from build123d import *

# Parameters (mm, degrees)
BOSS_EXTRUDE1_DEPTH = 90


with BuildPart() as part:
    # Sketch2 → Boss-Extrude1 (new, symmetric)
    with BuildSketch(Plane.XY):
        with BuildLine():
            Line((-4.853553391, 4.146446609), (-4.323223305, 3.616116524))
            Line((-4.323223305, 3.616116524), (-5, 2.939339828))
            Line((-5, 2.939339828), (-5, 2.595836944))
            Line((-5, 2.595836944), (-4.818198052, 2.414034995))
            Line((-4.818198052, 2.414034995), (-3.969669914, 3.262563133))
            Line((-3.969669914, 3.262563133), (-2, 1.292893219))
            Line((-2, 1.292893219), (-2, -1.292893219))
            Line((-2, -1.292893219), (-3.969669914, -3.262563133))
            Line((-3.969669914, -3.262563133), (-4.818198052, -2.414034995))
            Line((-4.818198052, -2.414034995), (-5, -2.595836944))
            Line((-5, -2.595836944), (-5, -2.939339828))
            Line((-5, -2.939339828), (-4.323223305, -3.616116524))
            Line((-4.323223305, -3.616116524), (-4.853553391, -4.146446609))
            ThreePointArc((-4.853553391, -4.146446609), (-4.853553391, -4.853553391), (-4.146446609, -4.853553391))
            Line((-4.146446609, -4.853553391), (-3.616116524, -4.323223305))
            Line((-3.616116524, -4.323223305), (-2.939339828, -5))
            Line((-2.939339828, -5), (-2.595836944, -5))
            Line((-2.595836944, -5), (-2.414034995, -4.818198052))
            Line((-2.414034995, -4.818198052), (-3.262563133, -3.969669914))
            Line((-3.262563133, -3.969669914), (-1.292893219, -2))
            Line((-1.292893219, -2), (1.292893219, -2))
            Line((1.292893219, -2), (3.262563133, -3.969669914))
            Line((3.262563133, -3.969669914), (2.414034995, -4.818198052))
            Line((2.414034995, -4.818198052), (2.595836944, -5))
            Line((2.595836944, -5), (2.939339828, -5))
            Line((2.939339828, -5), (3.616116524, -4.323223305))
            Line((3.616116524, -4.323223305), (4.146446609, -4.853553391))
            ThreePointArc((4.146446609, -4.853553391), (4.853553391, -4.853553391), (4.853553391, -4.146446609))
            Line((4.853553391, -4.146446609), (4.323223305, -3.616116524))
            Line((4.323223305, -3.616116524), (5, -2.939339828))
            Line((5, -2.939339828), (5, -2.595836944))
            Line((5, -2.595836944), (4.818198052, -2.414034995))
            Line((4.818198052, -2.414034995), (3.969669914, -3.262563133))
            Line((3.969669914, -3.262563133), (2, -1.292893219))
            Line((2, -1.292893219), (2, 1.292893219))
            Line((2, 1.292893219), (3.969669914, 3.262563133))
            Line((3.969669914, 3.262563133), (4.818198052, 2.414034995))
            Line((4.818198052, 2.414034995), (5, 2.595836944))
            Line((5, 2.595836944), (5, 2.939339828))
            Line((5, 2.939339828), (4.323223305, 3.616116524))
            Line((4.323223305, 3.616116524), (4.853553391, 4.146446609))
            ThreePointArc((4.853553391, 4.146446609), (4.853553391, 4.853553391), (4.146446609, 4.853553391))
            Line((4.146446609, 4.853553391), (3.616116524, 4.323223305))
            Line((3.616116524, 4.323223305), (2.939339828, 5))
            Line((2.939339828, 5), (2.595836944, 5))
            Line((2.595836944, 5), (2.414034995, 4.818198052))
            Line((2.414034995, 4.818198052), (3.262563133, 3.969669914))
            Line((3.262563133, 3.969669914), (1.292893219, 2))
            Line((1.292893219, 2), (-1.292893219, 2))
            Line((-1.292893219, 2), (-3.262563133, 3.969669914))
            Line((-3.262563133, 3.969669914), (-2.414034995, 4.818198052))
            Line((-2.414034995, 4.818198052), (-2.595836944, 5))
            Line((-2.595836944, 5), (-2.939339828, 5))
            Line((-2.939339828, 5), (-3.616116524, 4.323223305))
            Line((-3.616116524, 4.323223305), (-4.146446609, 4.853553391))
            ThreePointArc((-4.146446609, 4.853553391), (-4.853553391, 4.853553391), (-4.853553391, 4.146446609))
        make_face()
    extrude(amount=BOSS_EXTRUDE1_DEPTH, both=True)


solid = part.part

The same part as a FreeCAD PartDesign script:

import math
import FreeCAD as App
import Part
import Sketcher
Q = App.Units.Quantity

doc = App.newDocument("Part")
body = doc.addObject("PartDesign::Body", "Body")

# Sketch on XY plane
sketch1 = body.newObject("Sketcher::SketchObject", "Sketch")
sketch1.AttachmentSupport = (doc.getObject("XY_Plane"), [""])
sketch1.MapMode = "FlatFace"
sketch1.addGeometry(Part.LineSegment(App.Vector(-4.85, 4.15, 0), App.Vector(-4.32, 3.62, 0)), False)
sketch1.addGeometry(Part.LineSegment(App.Vector(-4.32, 3.62, 0), App.Vector(-5, 2.94, 0)), False)
sketch1.addGeometry(Part.LineSegment(App.Vector(-5, 2.94, 0), App.Vector(-5, 2.6, 0)), False)
sketch1.addGeometry(Part.LineSegment(App.Vector(-5, 2.6, 0), App.Vector(-4.82, 2.41, 0)), False)
sketch1.addGeometry(Part.LineSegment(App.Vector(-4.82, 2.41, 0), App.Vector(-3.97, 3.26, 0)), False)
sketch1.addGeometry(Part.LineSegment(App.Vector(-3.97, 3.26, 0), App.Vector(-2, 1.29, 0)), False)
sketch1.addGeometry(Part.LineSegment(App.Vector(-2, 1.29, 0), App.Vector(-2, -1.29, 0)), False)
sketch1.addGeometry(Part.LineSegment(App.Vector(-2, -1.29, 0), App.Vector(-3.97, -3.26, 0)), False)
sketch1.addGeometry(Part.LineSegment(App.Vector(-3.97, -3.26, 0), App.Vector(-4.82, -2.41, 0)), False)
sketch1.addGeometry(Part.LineSegment(App.Vector(-4.82, -2.41, 0), App.Vector(-5, -2.6, 0)), False)
sketch1.addGeometry(Part.LineSegment(App.Vector(-5, -2.6, 0), App.Vector(-5, -2.94, 0)), False)
sketch1.addGeometry(Part.LineSegment(App.Vector(-5, -2.94, 0), App.Vector(-4.32, -3.62, 0)), False)
sketch1.addGeometry(Part.LineSegment(App.Vector(-4.32, -3.62, 0), App.Vector(-4.85, -4.15, 0)), False)
sketch1.addGeometry(Part.ArcOfCircle(Part.Circle(App.Vector(-4.5, -4.5, 0), App.Vector(0, 0, 1), 0.5), math.radians(135), math.radians(315)), False)
sketch1.addGeometry(Part.LineSegment(App.Vector(-4.15, -4.85, 0), App.Vector(-3.62, -4.32, 0)), False)
sketch1.addGeometry(Part.LineSegment(App.Vector(-3.62, -4.32, 0), App.Vector(-2.94, -5, 0)), False)
sketch1.addGeometry(Part.LineSegment(App.Vector(-2.94, -5, 0), App.Vector(-2.6, -5, 0)), False)
sketch1.addGeometry(Part.LineSegment(App.Vector(-2.6, -5, 0), App.Vector(-2.41, -4.82, 0)), False)
sketch1.addGeometry(Part.LineSegment(App.Vector(-2.41, -4.82, 0), App.Vector(-3.26, -3.97, 0)), False)
sketch1.addGeometry(Part.LineSegment(App.Vector(-3.26, -3.97, 0), App.Vector(-1.29, -2, 0)), False)
sketch1.addGeometry(Part.LineSegment(App.Vector(-1.29, -2, 0), App.Vector(1.29, -2, 0)), False)
sketch1.addGeometry(Part.LineSegment(App.Vector(1.29, -2, 0), App.Vector(3.26, -3.97, 0)), False)
sketch1.addGeometry(Part.LineSegment(App.Vector(3.26, -3.97, 0), App.Vector(2.41, -4.82, 0)), False)
sketch1.addGeometry(Part.LineSegment(App.Vector(2.41, -4.82, 0), App.Vector(2.6, -5, 0)), False)
sketch1.addGeometry(Part.LineSegment(App.Vector(2.6, -5, 0), App.Vector(2.94, -5, 0)), False)
sketch1.addGeometry(Part.LineSegment(App.Vector(2.94, -5, 0), App.Vector(3.62, -4.32, 0)), False)
sketch1.addGeometry(Part.LineSegment(App.Vector(3.62, -4.32, 0), App.Vector(4.15, -4.85, 0)), False)
sketch1.addGeometry(Part.ArcOfCircle(Part.Circle(App.Vector(4.5, -4.5, 0), App.Vector(0, 0, 1), 0.5), math.radians(-135), math.radians(45)), False)
sketch1.addGeometry(Part.LineSegment(App.Vector(4.85, -4.15, 0), App.Vector(4.32, -3.62, 0)), False)
sketch1.addGeometry(Part.LineSegment(App.Vector(4.32, -3.62, 0), App.Vector(5, -2.94, 0)), False)
sketch1.addGeometry(Part.LineSegment(App.Vector(5, -2.94, 0), App.Vector(5, -2.6, 0)), False)
sketch1.addGeometry(Part.LineSegment(App.Vector(5, -2.6, 0), App.Vector(4.82, -2.41, 0)), False)
sketch1.addGeometry(Part.LineSegment(App.Vector(4.82, -2.41, 0), App.Vector(3.97, -3.26, 0)), False)
sketch1.addGeometry(Part.LineSegment(App.Vector(3.97, -3.26, 0), App.Vector(2, -1.29, 0)), False)
sketch1.addGeometry(Part.LineSegment(App.Vector(2, -1.29, 0), App.Vector(2, 1.29, 0)), False)
sketch1.addGeometry(Part.LineSegment(App.Vector(2, 1.29, 0), App.Vector(3.97, 3.26, 0)), False)
sketch1.addGeometry(Part.LineSegment(App.Vector(3.97, 3.26, 0), App.Vector(4.82, 2.41, 0)), False)
sketch1.addGeometry(Part.LineSegment(App.Vector(4.82, 2.41, 0), App.Vector(5, 2.6, 0)), False)
sketch1.addGeometry(Part.LineSegment(App.Vector(5, 2.6, 0), App.Vector(5, 2.94, 0)), False)
sketch1.addGeometry(Part.LineSegment(App.Vector(5, 2.94, 0), App.Vector(4.32, 3.62, 0)), False)
sketch1.addGeometry(Part.LineSegment(App.Vector(4.32, 3.62, 0), App.Vector(4.85, 4.15, 0)), False)
sketch1.addGeometry(Part.ArcOfCircle(Part.Circle(App.Vector(4.5, 4.5, 0), App.Vector(0, 0, 1), 0.5), math.radians(-45), math.radians(135)), False)
sketch1.addGeometry(Part.LineSegment(App.Vector(4.15, 4.85, 0), App.Vector(3.62, 4.32, 0)), False)
sketch1.addGeometry(Part.LineSegment(App.Vector(3.62, 4.32, 0), App.Vector(2.94, 5, 0)), False)
sketch1.addGeometry(Part.LineSegment(App.Vector(2.94, 5, 0), App.Vector(2.6, 5, 0)), False)
sketch1.addGeometry(Part.LineSegment(App.Vector(2.6, 5, 0), App.Vector(2.41, 4.82, 0)), False)
sketch1.addGeometry(Part.LineSegment(App.Vector(2.41, 4.82, 0), App.Vector(3.26, 3.97, 0)), False)
sketch1.addGeometry(Part.LineSegment(App.Vector(3.26, 3.97, 0), App.Vector(1.29, 2, 0)), False)
sketch1.addGeometry(Part.LineSegment(App.Vector(1.29, 2, 0), App.Vector(-1.29, 2, 0)), False)
sketch1.addGeometry(Part.LineSegment(App.Vector(-1.29, 2, 0), App.Vector(-3.26, 3.97, 0)), False)
sketch1.addGeometry(Part.LineSegment(App.Vector(-3.26, 3.97, 0), App.Vector(-2.41, 4.82, 0)), False)
sketch1.addGeometry(Part.LineSegment(App.Vector(-2.41, 4.82, 0), App.Vector(-2.6, 5, 0)), False)
sketch1.addGeometry(Part.LineSegment(App.Vector(-2.6, 5, 0), App.Vector(-2.94, 5, 0)), False)
sketch1.addGeometry(Part.LineSegment(App.Vector(-2.94, 5, 0), App.Vector(-3.62, 4.32, 0)), False)
sketch1.addGeometry(Part.LineSegment(App.Vector(-3.62, 4.32, 0), App.Vector(-4.15, 4.85, 0)), False)
sketch1.addGeometry(Part.ArcOfCircle(Part.Circle(App.Vector(-4.5, 4.5, 0), App.Vector(0, 0, 1), 0.5), math.radians(45), math.radians(225)), False)
sketch1.addConstraint(Sketcher.Constraint("Coincident", 0, 2, 1, 1))
sketch1.addConstraint(Sketcher.Constraint("Coincident", 1, 2, 2, 1))
sketch1.addConstraint(Sketcher.Constraint("Coincident", 2, 2, 3, 1))
sketch1.addConstraint(Sketcher.Constraint("Coincident", 3, 2, 4, 1))
sketch1.addConstraint(Sketcher.Constraint("Coincident", 4, 2, 5, 1))
sketch1.addConstraint(Sketcher.Constraint("Coincident", 5, 2, 6, 1))
sketch1.addConstraint(Sketcher.Constraint("Coincident", 6, 2, 7, 1))
sketch1.addConstraint(Sketcher.Constraint("Coincident", 7, 2, 8, 1))
sketch1.addConstraint(Sketcher.Constraint("Coincident", 8, 2, 9, 1))
sketch1.addConstraint(Sketcher.Constraint("Coincident", 9, 2, 10, 1))
sketch1.addConstraint(Sketcher.Constraint("Coincident", 10, 2, 11, 1))
sketch1.addConstraint(Sketcher.Constraint("Coincident", 11, 2, 12, 1))
sketch1.addConstraint(Sketcher.Constraint("Tangent", 12, 2, 13, 1))
sketch1.addConstraint(Sketcher.Constraint("Tangent", 13, 2, 14, 1))
sketch1.addConstraint(Sketcher.Constraint("Coincident", 14, 2, 15, 1))
sketch1.addConstraint(Sketcher.Constraint("Coincident", 15, 2, 16, 1))
sketch1.addConstraint(Sketcher.Constraint("Coincident", 16, 2, 17, 1))
sketch1.addConstraint(Sketcher.Constraint("Coincident", 17, 2, 18, 1))
sketch1.addConstraint(Sketcher.Constraint("Coincident", 18, 2, 19, 1))
sketch1.addConstraint(Sketcher.Constraint("Coincident", 19, 2, 20, 1))
sketch1.addConstraint(Sketcher.Constraint("Coincident", 20, 2, 21, 1))
sketch1.addConstraint(Sketcher.Constraint("Coincident", 21, 2, 22, 1))
sketch1.addConstraint(Sketcher.Constraint("Coincident", 22, 2, 23, 1))
sketch1.addConstraint(Sketcher.Constraint("Coincident", 23, 2, 24, 1))
sketch1.addConstraint(Sketcher.Constraint("Coincident", 24, 2, 25, 1))
sketch1.addConstraint(Sketcher.Constraint("Coincident", 25, 2, 26, 1))
sketch1.addConstraint(Sketcher.Constraint("Tangent", 26, 2, 27, 1))
sketch1.addConstraint(Sketcher.Constraint("Tangent", 27, 2, 28, 1))
sketch1.addConstraint(Sketcher.Constraint("Coincident", 28, 2, 29, 1))
sketch1.addConstraint(Sketcher.Constraint("Coincident", 29, 2, 30, 1))
sketch1.addConstraint(Sketcher.Constraint("Coincident", 30, 2, 31, 1))
sketch1.addConstraint(Sketcher.Constraint("Coincident", 31, 2, 32, 1))
sketch1.addConstraint(Sketcher.Constraint("Coincident", 32, 2, 33, 1))
sketch1.addConstraint(Sketcher.Constraint("Coincident", 33, 2, 34, 1))
sketch1.addConstraint(Sketcher.Constraint("Coincident", 34, 2, 35, 1))
sketch1.addConstraint(Sketcher.Constraint("Coincident", 35, 2, 36, 1))
sketch1.addConstraint(Sketcher.Constraint("Coincident", 36, 2, 37, 1))
sketch1.addConstraint(Sketcher.Constraint("Coincident", 37, 2, 38, 1))
sketch1.addConstraint(Sketcher.Constraint("Coincident", 38, 2, 39, 1))
sketch1.addConstraint(Sketcher.Constraint("Coincident", 39, 2, 40, 1))
sketch1.addConstraint(Sketcher.Constraint("Tangent", 40, 2, 41, 1))
sketch1.addConstraint(Sketcher.Constraint("Tangent", 41, 2, 42, 1))
sketch1.addConstraint(Sketcher.Constraint("Coincident", 42, 2, 43, 1))
sketch1.addConstraint(Sketcher.Constraint("Coincident", 43, 2, 44, 1))
sketch1.addConstraint(Sketcher.Constraint("Coincident", 44, 2, 45, 1))
sketch1.addConstraint(Sketcher.Constraint("Coincident", 45, 2, 46, 1))
sketch1.addConstraint(Sketcher.Constraint("Coincident", 46, 2, 47, 1))
sketch1.addConstraint(Sketcher.Constraint("Coincident", 47, 2, 48, 1))
sketch1.addConstraint(Sketcher.Constraint("Coincident", 48, 2, 49, 1))
sketch1.addConstraint(Sketcher.Constraint("Coincident", 49, 2, 50, 1))
sketch1.addConstraint(Sketcher.Constraint("Coincident", 50, 2, 51, 1))
sketch1.addConstraint(Sketcher.Constraint("Coincident", 51, 2, 52, 1))
sketch1.addConstraint(Sketcher.Constraint("Coincident", 52, 2, 53, 1))
sketch1.addConstraint(Sketcher.Constraint("Coincident", 53, 2, 54, 1))
sketch1.addConstraint(Sketcher.Constraint("Tangent", 54, 2, 55, 1))
sketch1.addConstraint(Sketcher.Constraint("Tangent", 55, 2, 0, 1))
sketch1.addConstraint(Sketcher.Constraint("Vertical", 2))
sketch1.addConstraint(Sketcher.Constraint("Vertical", 6))
sketch1.addConstraint(Sketcher.Constraint("Vertical", 10))
sketch1.addConstraint(Sketcher.Constraint("Horizontal", 16))
sketch1.addConstraint(Sketcher.Constraint("Horizontal", 20))
sketch1.addConstraint(Sketcher.Constraint("Horizontal", 24))
sketch1.addConstraint(Sketcher.Constraint("Vertical", 30))
sketch1.addConstraint(Sketcher.Constraint("Vertical", 34))
sketch1.addConstraint(Sketcher.Constraint("Vertical", 38))
sketch1.addConstraint(Sketcher.Constraint("Horizontal", 44))
sketch1.addConstraint(Sketcher.Constraint("Horizontal", 48))
sketch1.addConstraint(Sketcher.Constraint("Horizontal", 52))
sketch1.addConstraint(Sketcher.Constraint("Equal", 13, 27))
sketch1.addConstraint(Sketcher.Constraint("Equal", 27, 41))
sketch1.addConstraint(Sketcher.Constraint("Equal", 41, 55))
sketch1.addConstraint(Sketcher.Constraint("Symmetric", 13, 3, 41, 3, -1, 1))
sketch1.addConstraint(Sketcher.Constraint("Symmetric", 27, 3, 55, 3, -1, 1))
sketch1.addConstraint(Sketcher.Constraint("Symmetric", 0, 2, 28, 2, -1, 1))
sketch1.addConstraint(Sketcher.Constraint("Symmetric", 1, 2, 29, 2, -1, 1))
sketch1.addConstraint(Sketcher.Constraint("Symmetric", 3, 2, 31, 2, -1, 1))
sketch1.addConstraint(Sketcher.Constraint("Symmetric", 4, 2, 32, 2, -1, 1))
sketch1.addConstraint(Sketcher.Constraint("Symmetric", 5, 2, 33, 2, -1, 1))
sketch1.addConstraint(Sketcher.Constraint("Symmetric", 7, 2, 35, 2, -1, 1))
sketch1.addConstraint(Sketcher.Constraint("Symmetric", 8, 2, 36, 2, -1, 1))
sketch1.addConstraint(Sketcher.Constraint("Symmetric", 9, 2, 37, 2, -1, 1))
sketch1.addConstraint(Sketcher.Constraint("Symmetric", 11, 2, 39, 2, -1, 1))
sketch1.addConstraint(Sketcher.Constraint("Symmetric", 14, 2, 42, 2, -1, 1))
sketch1.addConstraint(Sketcher.Constraint("Symmetric", 15, 2, 43, 2, -1, 1))
sketch1.addConstraint(Sketcher.Constraint("Symmetric", 17, 2, 45, 2, -1, 1))
sketch1.addConstraint(Sketcher.Constraint("Symmetric", 18, 2, 46, 2, -1, 1))
sketch1.addConstraint(Sketcher.Constraint("Symmetric", 19, 2, 47, 2, -1, 1))
sketch1.addConstraint(Sketcher.Constraint("Symmetric", 21, 2, 49, 2, -1, 1))
sketch1.addConstraint(Sketcher.Constraint("Symmetric", 22, 2, 50, 2, -1, 1))
sketch1.addConstraint(Sketcher.Constraint("Symmetric", 23, 2, 51, 2, -1, 1))
sketch1.addConstraint(Sketcher.Constraint("Symmetric", 25, 2, 53, 2, -1, 1))
sketch1.addConstraint(Sketcher.Constraint("Symmetric", 13, 3, 27, 3, -2))
sketch1.addConstraint(Sketcher.Constraint("Symmetric", 18, 2, 21, 2, -2))
sketch1.addConstraint(Sketcher.Constraint("Symmetric", 17, 2, 22, 2, -2))
sketch1.addConstraint(Sketcher.Constraint("Symmetric", 16, 2, 23, 2, -2))
sketch1.addConstraint(Sketcher.Constraint("Symmetric", 14, 2, 25, 2, -2))
sketch1.addConstraint(Sketcher.Constraint("Symmetric", 11, 2, 28, 2, -2))
sketch1.addConstraint(Sketcher.Constraint("Symmetric", 10, 2, 29, 2, -2))
sketch1.addConstraint(Sketcher.Constraint("Symmetric", 8, 2, 31, 2, -2))
sketch1.addConstraint(Sketcher.Constraint("Symmetric", 7, 2, 32, 2, -2))
sketch1.addConstraint(Sketcher.Constraint("Perpendicular", 0, 1))
sketch1.addConstraint(Sketcher.Constraint("Perpendicular", 1, 3))
sketch1.addConstraint(Sketcher.Constraint("Perpendicular", 3, 4))
sketch1.addConstraint(Sketcher.Constraint("Perpendicular", 4, 5))
sketch1.addConstraint(Sketcher.Constraint("Perpendicular", 5, 7))
sketch1.addConstraint(Sketcher.Constraint("Perpendicular", 7, 8))
sketch1.addConstraint(Sketcher.Constraint("Perpendicular", 8, 9))
sketch1.addConstraint(Sketcher.Constraint("Parallel", 12, 14))
sketch1.addConstraint(Sketcher.Constraint("Perpendicular", 14, 15))
sketch1.addConstraint(Sketcher.Constraint("Perpendicular", 15, 17))
sketch1.addConstraint(Sketcher.Constraint("Perpendicular", 17, 18))
sketch1.addConstraint(Sketcher.Constraint("Perpendicular", 18, 19))
sketch1.addConstraint(Sketcher.Constraint("Perpendicular", 19, 21))
sketch1.addConstraint(Sketcher.Constraint("Perpendicular", 23, 25))
sketch1.addConstraint(Sketcher.Constraint("Perpendicular", 29, 31))
sketch1.addConstraint(Sketcher.Constraint("Perpendicular", 33, 35))
sketch1.addConstraint(Sketcher.Constraint("Perpendicular", 37, 39))
sketch1.addConstraint(Sketcher.Constraint("Perpendicular", 43, 45))
sketch1.addConstraint(Sketcher.Constraint("Perpendicular", 47, 49))
sketch1.addConstraint(Sketcher.Constraint("Perpendicular", 51, 53))
sketch1.addConstraint(Sketcher.Constraint("Equal", 52, 2))
sketch1.addConstraint(Sketcher.Constraint("Equal", 48, 6))
sketch1.addConstraint(Sketcher.Constraint("Equal", 12, 14))
sketch1.addConstraint(Sketcher.Constraint("Equal", 11, 15))
sketch1.addConstraint(Sketcher.Constraint("Equal", 9, 17))
sketch1.addConstraint(Sketcher.Constraint("Equal", 8, 18))
sketch1.addConstraint(Sketcher.Constraint("Equal", 7, 19))
sketch1.addConstraint(Sketcher.Constraint("Radius", 13, Q("0.5 mm")))
sketch1.addConstraint(Sketcher.Constraint("DistanceX", 1, 2, -1, 1, Q("5 mm")))
sketch1.addConstraint(Sketcher.Constraint("DistanceX", 5, 2, -1, 1, Q("2 mm")))
sketch1.addConstraint(Sketcher.Constraint("DistanceX", 13, 3, 27, 3, Q("9 mm")))
sketch1.addConstraint(Sketcher.Constraint("Distance", 4, Q("1.2 mm")))
sketch1.addConstraint(Sketcher.Constraint("Distance", 0, Q("0.75 mm")))
sketch1.addConstraint(Sketcher.Constraint("DistanceX", 3, 2, -1, 1, Q("4.818198 mm")))
sketch1.addConstraint(Sketcher.Constraint("DistanceY", 7, 2, 3, 2, Q("5.676598 mm")))
pad1 = body.newObject("PartDesign::Pad", "Pad")
pad1.Profile = sketch1
pad1.Length = 180
pad1.Midplane = True

doc.recompute()
